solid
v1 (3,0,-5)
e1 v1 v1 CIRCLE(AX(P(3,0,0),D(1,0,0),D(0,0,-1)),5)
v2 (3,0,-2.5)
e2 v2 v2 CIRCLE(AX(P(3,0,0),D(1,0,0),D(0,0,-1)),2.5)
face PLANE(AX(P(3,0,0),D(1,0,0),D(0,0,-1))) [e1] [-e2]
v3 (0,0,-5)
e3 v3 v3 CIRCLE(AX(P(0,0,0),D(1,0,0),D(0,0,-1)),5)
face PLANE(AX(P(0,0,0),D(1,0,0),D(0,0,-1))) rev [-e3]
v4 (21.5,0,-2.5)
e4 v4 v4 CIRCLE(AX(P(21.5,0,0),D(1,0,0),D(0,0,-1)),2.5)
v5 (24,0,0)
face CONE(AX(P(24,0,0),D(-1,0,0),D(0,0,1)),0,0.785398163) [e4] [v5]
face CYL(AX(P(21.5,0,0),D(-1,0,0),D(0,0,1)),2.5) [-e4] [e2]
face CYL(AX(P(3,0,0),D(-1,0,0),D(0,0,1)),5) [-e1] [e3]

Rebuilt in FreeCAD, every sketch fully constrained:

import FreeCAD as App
import Part
import Sketcher
Q = App.Units.Quantity


def add_polygon(sketch, points):
    """Adds a closed chain of lines whose ends are joined by coincident constraints."""
    first, n = sketch.GeometryCount, len(points)
    for a, b in zip(points, points[1:] + points[:1]):
        sketch.addGeometry(Part.LineSegment(App.Vector(*a, 0), App.Vector(*b, 0)), False)
    for i in range(n):
        sketch.addConstraint(Sketcher.Constraint("Coincident", first + i, 2, first + (i + 1) % n, 1))

doc = App.newDocument("Part")
params = doc.addObject("Spreadsheet::Sheet", "Params")
for row, (alias, value) in enumerate([
    ("sketch1_diameter", "10 mm"),
    ("pad1_length", "3 mm"),
    ("sketch2_diameter", "5 mm"),
    ("pad2_length", "18.5 mm"),
    ("sketch3_width", "2.5 mm"),
    ("revolution_angle", "360 deg"),
], start=1):
    params.set(f"A{row}", alias)
    params.set(f"B{row}", "=" + value)
    params.setAlias(f"B{row}", alias)

body = doc.addObject("PartDesign::Body", "Body")

sketch1 = body.newObject("Sketcher::SketchObject", "Sketch")
sketch1.AttachmentSupport = (doc.getObject("YZ_Plane"), [""])
sketch1.MapMode = "FlatFace"
sketch1.addGeometry(Part.Circle(App.Vector(0, 0, 0), App.Vector(0, 0, 1), 5), False)
sketch1.addConstraint(Sketcher.Constraint("Coincident", 0, 3, -1, 1))
sketch1.addConstraint(Sketcher.Constraint("Diameter", 0, Q("10 mm")))
sketch1.setExpression("Constraints[1]", "Params.sketch1_diameter")
pad1 = body.newObject("PartDesign::Pad", "Pad")
pad1.Profile = sketch1
pad1.setExpression("Length", "Params.pad1_length")

sketch2 = body.newObject("Sketcher::SketchObject", "Sketch001")
sketch2.AttachmentSupport = (doc.getObject("YZ_Plane"), [""])
sketch2.MapMode = "FlatFace"
sketch2.AttachmentOffset = App.Placement(App.Vector(0, 0, 3), App.Rotation())
sketch2.addGeometry(Part.Circle(App.Vector(0, 0, 0), App.Vector(0, 0, 1), 2.5), False)
sketch2.addConstraint(Sketcher.Constraint("Coincident", 0, 3, -1, 1))
sketch2.addConstraint(Sketcher.Constraint("Diameter", 0, Q("5 mm")))
sketch2.setExpression("Constraints[1]", "Params.sketch2_diameter")
pad2 = body.newObject("PartDesign::Pad", "Pad001")
pad2.Profile = sketch2
pad2.setExpression("Length", "Params.pad2_length")

sketch3 = body.newObject("Sketcher::SketchObject", "Sketch002")
sketch3.AttachmentSupport = (doc.getObject("XY_Plane"), [""])
sketch3.MapMode = "FlatFace"
add_polygon(sketch3, [(21.5, 0), (24, 0), (21.5, 2.5)])
sketch3.addConstraint(Sketcher.Constraint("Horizontal", 0))
sketch3.addConstraint(Sketcher.Constraint("Vertical", 2))
sketch3.addConstraint(Sketcher.Constraint("PointOnObject", 0, 2, -1))
sketch3.addConstraint(Sketcher.Constraint("Equal", 0, 2))
sketch3.addConstraint(Sketcher.Constraint("DistanceX", 0, 1, 0, 2, Q("2.5 mm")))
sketch3.addConstraint(Sketcher.Constraint("DistanceX", -1, 1, 0, 2, Q("24 mm")))
sketch3.setExpression("Constraints[7]", "Params.sketch3_width")
revolution = body.newObject("PartDesign::Revolution", "Revolution")
revolution.Profile = sketch3
revolution.ReferenceAxis = (sketch3, ["H_Axis"])
revolution.setExpression("Angle", "Params.revolution_angle")

doc.recompute()
